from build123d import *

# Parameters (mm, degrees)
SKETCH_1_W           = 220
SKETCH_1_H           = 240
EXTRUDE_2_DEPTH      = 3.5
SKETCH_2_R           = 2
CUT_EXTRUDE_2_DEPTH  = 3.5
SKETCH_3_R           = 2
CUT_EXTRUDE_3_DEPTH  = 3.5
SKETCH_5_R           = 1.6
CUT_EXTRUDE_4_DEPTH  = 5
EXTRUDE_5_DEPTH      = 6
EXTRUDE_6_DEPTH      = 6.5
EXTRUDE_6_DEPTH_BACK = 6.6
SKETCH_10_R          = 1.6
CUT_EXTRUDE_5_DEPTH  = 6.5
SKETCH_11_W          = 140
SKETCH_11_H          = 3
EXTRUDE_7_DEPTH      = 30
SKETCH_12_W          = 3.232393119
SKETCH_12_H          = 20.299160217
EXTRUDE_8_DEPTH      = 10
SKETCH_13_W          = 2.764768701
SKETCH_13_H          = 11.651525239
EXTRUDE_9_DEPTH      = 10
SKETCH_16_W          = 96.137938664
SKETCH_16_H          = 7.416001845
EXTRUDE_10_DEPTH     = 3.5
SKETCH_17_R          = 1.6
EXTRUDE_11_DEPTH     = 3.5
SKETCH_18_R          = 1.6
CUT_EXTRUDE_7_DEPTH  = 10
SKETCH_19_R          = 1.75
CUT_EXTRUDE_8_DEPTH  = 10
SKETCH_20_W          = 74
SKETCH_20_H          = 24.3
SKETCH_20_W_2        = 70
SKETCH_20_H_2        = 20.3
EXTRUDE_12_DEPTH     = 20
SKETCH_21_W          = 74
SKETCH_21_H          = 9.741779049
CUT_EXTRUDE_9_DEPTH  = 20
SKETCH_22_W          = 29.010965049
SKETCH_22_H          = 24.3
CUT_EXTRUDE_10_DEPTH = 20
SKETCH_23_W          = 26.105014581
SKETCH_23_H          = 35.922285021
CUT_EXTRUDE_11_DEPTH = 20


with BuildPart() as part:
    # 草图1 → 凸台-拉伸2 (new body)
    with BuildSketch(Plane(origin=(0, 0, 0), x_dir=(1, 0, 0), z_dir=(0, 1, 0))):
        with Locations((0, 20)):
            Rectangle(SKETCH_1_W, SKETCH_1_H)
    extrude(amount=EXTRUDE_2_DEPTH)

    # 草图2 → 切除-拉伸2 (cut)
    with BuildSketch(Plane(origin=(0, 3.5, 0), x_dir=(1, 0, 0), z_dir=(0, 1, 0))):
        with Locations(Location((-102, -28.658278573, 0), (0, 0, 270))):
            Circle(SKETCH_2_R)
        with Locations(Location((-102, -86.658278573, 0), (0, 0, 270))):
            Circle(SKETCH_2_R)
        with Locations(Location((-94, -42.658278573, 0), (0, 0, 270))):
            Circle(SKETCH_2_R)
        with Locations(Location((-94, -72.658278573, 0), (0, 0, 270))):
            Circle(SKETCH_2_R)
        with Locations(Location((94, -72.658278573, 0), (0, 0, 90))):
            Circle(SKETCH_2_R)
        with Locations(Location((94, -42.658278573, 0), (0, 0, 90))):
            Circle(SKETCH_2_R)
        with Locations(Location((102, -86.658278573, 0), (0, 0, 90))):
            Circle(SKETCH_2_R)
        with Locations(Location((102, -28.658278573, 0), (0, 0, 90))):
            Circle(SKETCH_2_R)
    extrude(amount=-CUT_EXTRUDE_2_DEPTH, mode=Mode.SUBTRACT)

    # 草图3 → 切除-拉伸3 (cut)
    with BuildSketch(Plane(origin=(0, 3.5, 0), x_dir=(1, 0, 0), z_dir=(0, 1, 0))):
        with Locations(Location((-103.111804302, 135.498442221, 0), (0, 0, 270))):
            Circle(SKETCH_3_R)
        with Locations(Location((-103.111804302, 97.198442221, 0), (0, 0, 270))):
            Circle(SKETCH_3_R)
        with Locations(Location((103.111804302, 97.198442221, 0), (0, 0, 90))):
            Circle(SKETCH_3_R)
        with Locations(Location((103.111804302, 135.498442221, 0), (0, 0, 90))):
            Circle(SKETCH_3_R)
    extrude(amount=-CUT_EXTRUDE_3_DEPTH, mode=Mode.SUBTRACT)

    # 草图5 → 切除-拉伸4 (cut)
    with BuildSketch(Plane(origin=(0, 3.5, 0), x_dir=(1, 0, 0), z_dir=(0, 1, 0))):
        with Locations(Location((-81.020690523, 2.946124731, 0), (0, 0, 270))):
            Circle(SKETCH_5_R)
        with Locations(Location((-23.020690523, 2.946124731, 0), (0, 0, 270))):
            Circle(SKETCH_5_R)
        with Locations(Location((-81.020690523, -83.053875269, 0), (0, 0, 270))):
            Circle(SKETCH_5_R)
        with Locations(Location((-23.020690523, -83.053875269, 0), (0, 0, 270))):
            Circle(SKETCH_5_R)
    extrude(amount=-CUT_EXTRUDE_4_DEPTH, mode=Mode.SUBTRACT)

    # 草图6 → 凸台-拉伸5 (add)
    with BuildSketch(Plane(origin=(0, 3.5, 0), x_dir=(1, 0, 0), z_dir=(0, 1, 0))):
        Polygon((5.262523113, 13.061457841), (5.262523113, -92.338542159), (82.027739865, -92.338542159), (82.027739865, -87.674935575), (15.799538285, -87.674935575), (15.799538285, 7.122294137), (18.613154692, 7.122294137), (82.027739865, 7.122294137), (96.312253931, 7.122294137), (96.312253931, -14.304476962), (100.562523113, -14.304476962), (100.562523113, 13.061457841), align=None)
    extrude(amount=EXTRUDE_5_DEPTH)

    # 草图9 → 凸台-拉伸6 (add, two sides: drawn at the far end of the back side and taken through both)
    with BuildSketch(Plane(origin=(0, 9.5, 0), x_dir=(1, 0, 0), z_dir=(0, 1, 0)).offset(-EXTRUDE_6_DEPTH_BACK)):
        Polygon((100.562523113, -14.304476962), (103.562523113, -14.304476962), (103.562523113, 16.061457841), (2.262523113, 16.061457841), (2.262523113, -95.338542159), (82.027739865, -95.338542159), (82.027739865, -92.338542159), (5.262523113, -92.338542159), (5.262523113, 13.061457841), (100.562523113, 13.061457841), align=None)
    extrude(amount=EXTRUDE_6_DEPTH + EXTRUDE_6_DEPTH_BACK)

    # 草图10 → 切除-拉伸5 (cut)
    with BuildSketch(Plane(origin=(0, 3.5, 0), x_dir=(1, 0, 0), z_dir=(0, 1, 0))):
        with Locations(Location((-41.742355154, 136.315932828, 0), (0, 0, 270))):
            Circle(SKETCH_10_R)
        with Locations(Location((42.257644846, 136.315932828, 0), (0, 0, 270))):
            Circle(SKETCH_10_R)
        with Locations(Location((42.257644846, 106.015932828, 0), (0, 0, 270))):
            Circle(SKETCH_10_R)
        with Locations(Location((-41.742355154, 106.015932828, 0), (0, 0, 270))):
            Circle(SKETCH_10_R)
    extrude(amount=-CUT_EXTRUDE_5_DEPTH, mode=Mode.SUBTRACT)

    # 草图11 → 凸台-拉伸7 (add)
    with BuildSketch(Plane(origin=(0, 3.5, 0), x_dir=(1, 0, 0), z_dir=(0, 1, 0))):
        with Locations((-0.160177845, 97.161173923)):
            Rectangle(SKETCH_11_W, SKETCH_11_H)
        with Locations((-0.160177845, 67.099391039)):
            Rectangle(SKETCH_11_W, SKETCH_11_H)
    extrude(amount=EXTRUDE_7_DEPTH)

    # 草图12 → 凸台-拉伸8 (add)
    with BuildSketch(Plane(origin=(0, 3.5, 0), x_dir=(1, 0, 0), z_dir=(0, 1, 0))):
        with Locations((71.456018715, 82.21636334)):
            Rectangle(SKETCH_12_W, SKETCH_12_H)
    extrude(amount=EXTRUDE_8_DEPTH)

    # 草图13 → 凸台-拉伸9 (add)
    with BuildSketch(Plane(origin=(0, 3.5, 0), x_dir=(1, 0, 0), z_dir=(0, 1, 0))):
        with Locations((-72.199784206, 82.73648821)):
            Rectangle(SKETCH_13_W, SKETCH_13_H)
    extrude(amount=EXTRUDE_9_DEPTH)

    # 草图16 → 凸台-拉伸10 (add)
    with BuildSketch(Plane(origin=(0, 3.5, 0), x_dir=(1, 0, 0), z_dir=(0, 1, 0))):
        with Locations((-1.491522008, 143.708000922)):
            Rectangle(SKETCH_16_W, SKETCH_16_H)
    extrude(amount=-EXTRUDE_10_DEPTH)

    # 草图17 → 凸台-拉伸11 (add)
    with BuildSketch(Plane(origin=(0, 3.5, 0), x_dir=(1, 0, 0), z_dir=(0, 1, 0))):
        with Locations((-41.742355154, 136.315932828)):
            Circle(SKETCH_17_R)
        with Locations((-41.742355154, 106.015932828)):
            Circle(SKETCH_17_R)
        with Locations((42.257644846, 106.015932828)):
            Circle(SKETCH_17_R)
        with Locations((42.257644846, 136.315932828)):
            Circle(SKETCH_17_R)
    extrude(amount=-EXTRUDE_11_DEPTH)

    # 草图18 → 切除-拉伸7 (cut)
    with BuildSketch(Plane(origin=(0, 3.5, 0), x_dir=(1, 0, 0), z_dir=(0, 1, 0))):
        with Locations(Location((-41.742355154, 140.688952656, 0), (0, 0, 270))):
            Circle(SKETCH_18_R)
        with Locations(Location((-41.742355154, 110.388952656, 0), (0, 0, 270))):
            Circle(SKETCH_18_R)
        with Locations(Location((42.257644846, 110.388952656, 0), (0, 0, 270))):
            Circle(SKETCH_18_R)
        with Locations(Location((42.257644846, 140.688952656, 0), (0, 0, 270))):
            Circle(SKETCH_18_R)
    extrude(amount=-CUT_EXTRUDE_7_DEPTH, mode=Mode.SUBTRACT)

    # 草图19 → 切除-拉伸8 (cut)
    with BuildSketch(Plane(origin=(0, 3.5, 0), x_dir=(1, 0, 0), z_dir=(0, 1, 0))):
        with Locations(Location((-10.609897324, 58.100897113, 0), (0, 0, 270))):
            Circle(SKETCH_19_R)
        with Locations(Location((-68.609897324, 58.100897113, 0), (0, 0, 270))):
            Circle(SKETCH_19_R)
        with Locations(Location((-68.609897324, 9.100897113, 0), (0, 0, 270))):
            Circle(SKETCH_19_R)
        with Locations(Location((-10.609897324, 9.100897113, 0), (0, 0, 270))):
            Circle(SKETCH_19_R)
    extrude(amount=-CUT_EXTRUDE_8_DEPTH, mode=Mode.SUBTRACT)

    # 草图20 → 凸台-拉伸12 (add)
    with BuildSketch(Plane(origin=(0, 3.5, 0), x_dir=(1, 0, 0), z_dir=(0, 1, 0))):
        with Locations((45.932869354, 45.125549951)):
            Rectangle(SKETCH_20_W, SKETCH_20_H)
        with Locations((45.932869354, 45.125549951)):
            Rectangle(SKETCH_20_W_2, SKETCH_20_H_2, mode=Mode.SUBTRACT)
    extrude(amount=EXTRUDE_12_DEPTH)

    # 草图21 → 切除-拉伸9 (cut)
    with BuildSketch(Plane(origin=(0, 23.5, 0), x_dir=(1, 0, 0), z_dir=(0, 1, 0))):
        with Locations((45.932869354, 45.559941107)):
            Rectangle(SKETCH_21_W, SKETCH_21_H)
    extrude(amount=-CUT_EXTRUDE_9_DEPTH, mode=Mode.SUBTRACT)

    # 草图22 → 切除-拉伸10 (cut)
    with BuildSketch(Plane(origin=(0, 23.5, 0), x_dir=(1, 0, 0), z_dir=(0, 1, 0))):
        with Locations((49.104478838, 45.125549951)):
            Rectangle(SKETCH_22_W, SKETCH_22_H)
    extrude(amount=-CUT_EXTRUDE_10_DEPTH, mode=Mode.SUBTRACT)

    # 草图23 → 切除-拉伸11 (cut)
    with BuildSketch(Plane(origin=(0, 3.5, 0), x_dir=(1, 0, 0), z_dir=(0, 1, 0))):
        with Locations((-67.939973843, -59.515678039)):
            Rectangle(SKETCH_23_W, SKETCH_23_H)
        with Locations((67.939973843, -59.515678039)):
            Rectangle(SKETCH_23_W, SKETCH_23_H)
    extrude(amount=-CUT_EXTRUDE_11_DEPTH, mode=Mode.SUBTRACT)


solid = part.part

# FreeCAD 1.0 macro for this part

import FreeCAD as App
import Part
import Sketcher
from FreeCAD import Vector
Q = App.Units.Quantity

doc = App.newDocument("Part")
body = doc.addObject("PartDesign::Body", "Body")

sketch1 = doc.addObject("Sketcher::SketchObject", "Sketch")
body.addObject(sketch1)
sketch1.AttachmentSupport = (doc.XZ_Plane, [""])
sketch1.MapMode = "FlatFace"
sketch1.addGeometry([
    Part.LineSegment(Vector(-110, -140, 0), Vector(-110, 100, 0)),
    Part.LineSegment(Vector(-110, 100, 0), Vector(110, 100, 0)),
    Part.LineSegment(Vector(110, 100, 0), Vector(110, -140, 0)),
    Part.LineSegment(Vector(110, -140, 0), Vector(-110, -140, 0)),
], False)
sketch1.addConstraint([
    Sketcher.Constraint("Coincident", 0, 2, 1, 1),
    Sketcher.Constraint("Coincident", 1, 2, 2, 1),
    Sketcher.Constraint("Coincident", 2, 2, 3, 1),
    Sketcher.Constraint("Coincident", 3, 2, 0, 1),
    Sketcher.Constraint("Vertical", 0),
    Sketcher.Constraint("Horizontal", 1),
    Sketcher.Constraint("Vertical", 2),
    Sketcher.Constraint("Horizontal", 3),
    Sketcher.Constraint("DistanceX", 1, 1, 1, 2, Q("220 mm")),
    Sketcher.Constraint("DistanceY", 0, 1, 0, 2, Q("240 mm")),
    Sketcher.Constraint("DistanceX", 0, 2, -1, 1, Q("110 mm")),
    Sketcher.Constraint("DistanceY", -1, 1, 0, 2, Q("100 mm")),
])
pad1 = doc.addObject("PartDesign::Pad", "Pad")
body.addObject(pad1)
pad1.Profile = sketch1
pad1.Length = 3.5
pad1.Reversed = True

sketch2 = doc.addObject("Sketcher::SketchObject", "Sketch001")
body.addObject(sketch2)
sketch2.AttachmentSupport = (doc.XZ_Plane, [""])
sketch2.MapMode = "FlatFace"
sketch2.AttachmentOffset = App.Placement(Vector(0, 0, -3.5), App.Rotation())
sketch2.addGeometry([
    Part.Circle(Vector(-102, 28.7, 0), Vector(0, 0, 1), 2),
    Part.Circle(Vector(-102, 86.7, 0), Vector(0, 0, 1), 2),
    Part.Circle(Vector(-94, 42.7, 0), Vector(0, 0, 1), 2),
    Part.Circle(Vector(-94, 72.7, 0), Vector(0, 0, 1), 2),
    Part.Circle(Vector(94, 72.7, 0), Vector(0, 0, 1), 2),
    Part.Circle(Vector(94, 42.7, 0), Vector(0, 0, 1), 2),
    Part.Circle(Vector(102, 86.7, 0), Vector(0, 0, 1), 2),
    Part.Circle(Vector(102, 28.7, 0), Vector(0, 0, 1), 2),
], False)
sketch2.addConstraint([
    Sketcher.Constraint("Equal", 0, 1),
    Sketcher.Constraint("Equal", 1, 2),
    Sketcher.Constraint("Equal", 2, 3),
    Sketcher.Constraint("Equal", 3, 4),
    Sketcher.Constraint("Equal", 4, 5),
    Sketcher.Constraint("Equal", 5, 6),
    Sketcher.Constraint("Equal", 6, 7),
    Sketcher.Constraint("Symmetric", 3, 3, 4, 3, -2),
    Sketcher.Constraint("Symmetric", 2, 3, 5, 3, -2),
    Sketcher.Constraint("Symmetric", 1, 3, 6, 3, -2),
    Sketcher.Constraint("Symmetric", 0, 3, 7, 3, -2),
    Sketcher.Constraint("Vertical", 0, 3, 1, 3),
    Sketcher.Constraint("Vertical", 2, 3, 3, 3),
    Sketcher.Constraint("Diameter", 0, Q("4 mm")),
    Sketcher.Constraint("DistanceX", 0, 3, -1, 1, Q("102 mm")),
    Sketcher.Constraint("DistanceX", 2, 3, -1, 1, Q("94 mm")),
    Sketcher.Constraint("DistanceY", 0, 3, 1, 3, Q("58 mm")),
    Sketcher.Constraint("DistanceY", 0, 3, 2, 3, Q("14 mm")),
    Sketcher.Constraint("DistanceY", 3, 3, 1, 3, Q("14 mm")),
    Sketcher.Constraint("DistanceY", -1, 1, 0, 3, Q("28.658279 mm")),
])
pocket1 = doc.addObject("PartDesign::Pocket", "Pocket")
body.addObject(pocket1)
pocket1.Profile = sketch2
pocket1.Length = 3.5
pocket1.Reversed = True

sketch3 = doc.addObject("Sketcher::SketchObject", "Sketch002")
body.addObject(sketch3)
sketch3.AttachmentSupport = (doc.XZ_Plane, [""])
sketch3.MapMode = "FlatFace"
sketch3.AttachmentOffset = App.Placement(Vector(0, 0, -3.5), App.Rotation())
sketch3.addGeometry([
    Part.Circle(Vector(-103.1, -135.5, 0), Vector(0, 0, 1), 2),
    Part.Circle(Vector(-103.1, -97.2, 0), Vector(0, 0, 1), 2),
    Part.Circle(Vector(103.1, -97.2, 0), Vector(0, 0, 1), 2),
    Part.Circle(Vector(103.1, -135.5, 0), Vector(0, 0, 1), 2),
], False)
sketch3.addConstraint([
    Sketcher.Constraint("Equal", 0, 1),
    Sketcher.Constraint("Equal", 1, 2),
    Sketcher.Constraint("Equal", 2, 3),
    Sketcher.Constraint("Symmetric", 1, 3, 2, 3, -2),
    Sketcher.Constraint("Symmetric", 0, 3, 3, 3, -2),
    Sketcher.Constraint("Vertical", 0, 3, 1, 3),
    Sketcher.Constraint("Diameter", 0, Q("4 mm")),
    Sketcher.Constraint("DistanceY", 0, 3, 1, 3, Q("38.3 mm")),
    Sketcher.Constraint("DistanceX", 1, 3, 2, 3, Q("206.223609 mm")),
    Sketcher.Constraint("DistanceY", 0, 3, -1, 1, Q("135.498442 mm")),
])
pocket2 = doc.addObject("PartDesign::Pocket", "Pocket001")
body.addObject(pocket2)
pocket2.Profile = sketch3
pocket2.Length = 3.5
pocket2.Reversed = True

sketch4 = doc.addObject("Sketcher::SketchObject", "Sketch003")
body.addObject(sketch4)
sketch4.AttachmentSupport = (doc.XZ_Plane, [""])
sketch4.MapMode = "FlatFace"
sketch4.AttachmentOffset = App.Placement(Vector(0, 0, -3.5), App.Rotation())
sketch4.addGeometry([
    Part.Circle(Vector(-81, -2.9, 0), Vector(0, 0, 1), 1.6),
    Part.Circle(Vector(-23, -2.9, 0), Vector(0, 0, 1), 1.6),
    Part.Circle(Vector(-81, 83.1, 0), Vector(0, 0, 1), 1.6),
    Part.Circle(Vector(-23, 83.1, 0), Vector(0, 0, 1), 1.6),
], False)
sketch4.addConstraint([
    Sketcher.Constraint("Equal", 0, 1),
    Sketcher.Constraint("Equal", 1, 2),
    Sketcher.Constraint("Equal", 2, 3),
    Sketcher.Constraint("Horizontal", 0, 3, 1, 3),
    Sketcher.Constraint("Horizontal", 2, 3, 3, 3),
    Sketcher.Constraint("Vertical", 0, 3, 2, 3),
    Sketcher.Constraint("Vertical", 1, 3, 3, 3),
    Sketcher.Constraint("Diameter", 0, Q("3.2 mm")),
    Sketcher.Constraint("DistanceX", 0, 3, 1, 3, Q("58 mm")),
    Sketcher.Constraint("DistanceY", 0, 3, 2, 3, Q("86 mm")),
    Sketcher.Constraint("DistanceX", 0, 3, -1, 1, Q("81.020691 mm")),
    Sketcher.Constraint("DistanceY", 0, 3, -1, 1, Q("2.946125 mm")),
])
pocket3 = doc.addObject("PartDesign::Pocket", "Pocket002")
body.addObject(pocket3)
pocket3.Profile = sketch4
pocket3.Length = 5
pocket3.Reversed = True

sketch5 = doc.addObject("Sketcher::SketchObject", "Sketch004")
body.addObject(sketch5)
sketch5.AttachmentSupport = (doc.XZ_Plane, [""])
sketch5.MapMode = "FlatFace"
sketch5.AttachmentOffset = App.Placement(Vector(0, 0, -3.5), App.Rotation())
sketch5.addGeometry([
    Part.LineSegment(Vector(5.3, -13.1, 0), Vector(5.3, 92.3, 0)),
    Part.LineSegment(Vector(5.3, 92.3, 0), Vector(82, 92.3, 0)),
    Part.LineSegment(Vector(82, 92.3, 0), Vector(82, 87.7, 0)),
    Part.LineSegment(Vector(82, 87.7, 0), Vector(15.8, 87.7, 0)),
    Part.LineSegment(Vector(15.8, 87.7, 0), Vector(15.8, -7.1, 0)),
    Part.LineSegment(Vector(15.8, -7.1, 0), Vector(96.3, -7.1, 0)),
    Part.LineSegment(Vector(96.3, -7.1, 0), Vector(96.3, 14.3, 0)),
    Part.LineSegment(Vector(96.3, 14.3, 0), Vector(100.6, 14.3, 0)),
    Part.LineSegment(Vector(100.6, 14.3, 0), Vector(100.6, -13.1, 0)),
    Part.LineSegment(Vector(100.6, -13.1, 0), Vector(5.3, -13.1, 0)),
], False)
sketch5.addConstraint([
    Sketcher.Constraint("Coincident", 0, 2, 1, 1),
    Sketcher.Constraint("Coincident", 1, 2, 2, 1),
    Sketcher.Constraint("Coincident", 2, 2, 3, 1),
    Sketcher.Constraint("Coincident", 3, 2, 4, 1),
    Sketcher.Constraint("Coincident", 4, 2, 5, 1),
    Sketcher.Constraint("Coincident", 5, 2, 6, 1),
    Sketcher.Constraint("Coincident", 6, 2, 7, 1),
    Sketcher.Constraint("Coincident", 7, 2, 8, 1),
    Sketcher.Constraint("Coincident", 8, 2, 9, 1),
    Sketcher.Constraint("Coincident", 9, 2, 0, 1),
    Sketcher.Constraint("Vertical", 0),
    Sketcher.Constraint("Horizontal", 1),
    Sketcher.Constraint("Vertical", 2),
    Sketcher.Constraint("Horizontal", 3),
    Sketcher.Constraint("Vertical", 4),
    Sketcher.Constraint("Horizontal", 5),
    Sketcher.Constraint("Vertical", 6),
    Sketcher.Constraint("Horizontal", 7),
    Sketcher.Constraint("Vertical", 8),
    Sketcher.Constraint("Horizontal", 9),
    Sketcher.Constraint("DistanceX", 9, 2, 9, 1, Q("95.3 mm")),
    Sketcher.Constraint("DistanceY", 0, 1, 0, 2, Q("105.4 mm")),
    Sketcher.Constraint("DistanceX", 3, 2, 3, 1, Q("66.228202 mm")),
    Sketcher.Constraint("DistanceX", 7, 1, 7, 2, Q("4.250269 mm")),
    Sketcher.Constraint("DistanceY", 4, 2, 4, 1, Q("94.79723 mm")),
    Sketcher.Constraint("DistanceY", 6, 1, 6, 2, Q("21.426771 mm")),
    Sketcher.Constraint("DistanceX", 1, 1, 1, 2, Q("76.765217 mm")),
    Sketcher.Constraint("DistanceY", 2, 2, 2, 1, Q("4.663607 mm")),
    Sketcher.Constraint("DistanceX", -1, 1, 1, 2, Q("82.02774 mm")),
    Sketcher.Constraint("DistanceY", -1, 1, 0, 2, Q("92.338542 mm")),
])
pad2 = doc.addObject("PartDesign::Pad", "Pad001")
body.addObject(pad2)
pad2.Profile = sketch5
pad2.Length = 6
pad2.Reversed = True

sketch6 = doc.addObject("Sketcher::SketchObject", "Sketch005")
body.addObject(sketch6)
sketch6.AttachmentSupport = (doc.XZ_Plane, [""])
sketch6.MapMode = "FlatFace"
sketch6.AttachmentOffset = App.Placement(Vector(0, 0, -9.5), App.Rotation())
sketch6.addGeometry([
    Part.LineSegment(Vector(100.6, 14.3, 0), Vector(103.6, 14.3, 0)),
    Part.LineSegment(Vector(103.6, 14.3, 0), Vector(103.6, -16.1, 0)),
    Part.LineSegment(Vector(103.6, -16.1, 0), Vector(2.3, -16.1, 0)),
    Part.LineSegment(Vector(2.3, -16.1, 0), Vector(2.3, 95.3, 0)),
    Part.LineSegment(Vector(2.3, 95.3, 0), Vector(82, 95.3, 0)),
    Part.LineSegment(Vector(82, 95.3, 0), Vector(82, 92.3, 0)),
    Part.LineSegment(Vector(82, 92.3, 0), Vector(5.3, 92.3, 0)),
    Part.LineSegment(Vector(5.3, 92.3, 0), Vector(5.3, -13.1, 0)),
    Part.LineSegment(Vector(5.3, -13.1, 0), Vector(100.6, -13.1, 0)),
    Part.LineSegment(Vector(100.6, -13.1, 0), Vector(100.6, 14.3, 0)),
], False)
sketch6.addConstraint([
    Sketcher.Constraint("Coincident", 0, 2, 1, 1),
    Sketcher.Constraint("Coincident", 1, 2, 2, 1),
    Sketcher.Constraint("Coincident", 2, 2, 3, 1),
    Sketcher.Constraint("Coincident", 3, 2, 4, 1),
    Sketcher.Constraint("Coincident", 4, 2, 5, 1),
    Sketcher.Constraint("Coincident", 5, 2, 6, 1),
    Sketcher.Constraint("Coincident", 6, 2, 7, 1),
    Sketcher.Constraint("Coincident", 7, 2, 8, 1),
    Sketcher.Constraint("Coincident", 8, 2, 9, 1),
    Sketcher.Constraint("Coincident", 9, 2, 0, 1),
    Sketcher.Constraint("Horizontal", 0),
    Sketcher.Constraint("Vertical", 1),
    Sketcher.Constraint("Horizontal", 2),
    Sketcher.Constraint("Vertical", 3),
    Sketcher.Constraint("Horizontal", 4),
    Sketcher.Constraint("Vertical", 5),
    Sketcher.Constraint("Horizontal", 6),
    Sketcher.Constraint("Vertical", 7),
    Sketcher.Constraint("Horizontal", 8),
    Sketcher.Constraint("Vertical", 9),
    Sketcher.Constraint("Equal", 0, 5),
    Sketcher.Constraint("DistanceX", 0, 1, 0, 2, Q("3 mm")),
    Sketcher.Constraint("DistanceX", 2, 2, 2, 1, Q("101.3 mm")),
    Sketcher.Constraint("DistanceX", 8, 1, 8, 2, Q("95.3 mm")),
    Sketcher.Constraint("DistanceY", 3, 1, 3, 2, Q("111.4 mm")),
    Sketcher.Constraint("DistanceY", 7, 2, 7, 1, Q("105.4 mm")),
    Sketcher.Constraint("DistanceX", 4, 1, 4, 2, Q("79.765217 mm")),
    Sketcher.Constraint("DistanceY", 1, 2, 1, 1, Q("30.365935 mm")),
    Sketcher.Constraint("DistanceX", -1, 1, 4, 2, Q("82.02774 mm")),
    Sketcher.Constraint("DistanceY", -1, 1, 0, 2, Q("14.304477 mm")),
])
pad3 = doc.addObject("PartDesign::Pad", "Pad002")
body.addObject(pad3)
pad3.Profile = sketch6
pad3.Type = "TwoLengths"
pad3.Length = 6.5
pad3.Length2 = 6.6
pad3.Reversed = True

sketch7 = doc.addObject("Sketcher::SketchObject", "Sketch006")
body.addObject(sketch7)
sketch7.AttachmentSupport = (doc.XZ_Plane, [""])
sketch7.MapMode = "FlatFace"
sketch7.AttachmentOffset = App.Placement(Vector(0, 0, -3.5), App.Rotation())
sketch7.addGeometry([
    Part.Circle(Vector(-41.7, -136.3, 0), Vector(0, 0, 1), 1.6),
    Part.Circle(Vector(42.3, -136.3, 0), Vector(0, 0, 1), 1.6),
    Part.Circle(Vector(42.3, -106, 0), Vector(0, 0, 1), 1.6),
    Part.Circle(Vector(-41.7, -106, 0), Vector(0, 0, 1), 1.6),
], False)
sketch7.addConstraint([
    Sketcher.Constraint("Equal", 0, 1),
    Sketcher.Constraint("Equal", 1, 2),
    Sketcher.Constraint("Equal", 2, 3),
    Sketcher.Constraint("Horizontal", 0, 3, 1, 3),
    Sketcher.Constraint("Horizontal", 2, 3, 3, 3),
    Sketcher.Constraint("Vertical", 1, 3, 2, 3),
    Sketcher.Constraint("Vertical", 0, 3, 3, 3),
    Sketcher.Constraint("Diameter", 0, Q("3.2 mm")),
    Sketcher.Constraint("DistanceX", 0, 3, 1, 3, Q("84 mm")),
    Sketcher.Constraint("DistanceY", 1, 3, 2, 3, Q("30.3 mm")),
    Sketcher.Constraint("DistanceX", 0, 3, -1, 1, Q("41.742355 mm")),
    Sketcher.Constraint("DistanceY", 0, 3, -1, 1, Q("136.315933 mm")),
])
pocket4 = doc.addObject("PartDesign::Pocket", "Pocket003")
body.addObject(pocket4)
pocket4.Profile = sketch7
pocket4.Length = 6.5
pocket4.Reversed = True

sketch8 = doc.addObject("Sketcher::SketchObject", "Sketch007")
body.addObject(sketch8)
sketch8.AttachmentSupport = (doc.XZ_Plane, [""])
sketch8.MapMode = "FlatFace"
sketch8.AttachmentOffset = App.Placement(Vector(0, 0, -3.5), App.Rotation())
sketch8.addGeometry([
    Part.LineSegment(Vector(-70.2, -98.7, 0), Vector(-70.2, -95.7, 0)),
    Part.LineSegment(Vector(-70.2, -95.7, 0), Vector(69.8, -95.7, 0)),
    Part.LineSegment(Vector(69.8, -95.7, 0), Vector(69.8, -98.7, 0)),
    Part.LineSegment(Vector(69.8, -98.7, 0), Vector(-70.2, -98.7, 0)),
    Part.LineSegment(Vector(-70.2, -68.6, 0), Vector(-70.2, -65.6, 0)),
    Part.LineSegment(Vector(-70.2, -65.6, 0), Vector(69.8, -65.6, 0)),
    Part.LineSegment(Vector(69.8, -65.6, 0), Vector(69.8, -68.6, 0)),
    Part.LineSegment(Vector(69.8, -68.6, 0), Vector(-70.2, -68.6, 0)),
], False)
sketch8.addConstraint([
    Sketcher.Constraint("Coincident", 0, 2, 1, 1),
    Sketcher.Constraint("Coincident", 1, 2, 2, 1),
    Sketcher.Constraint("Coincident", 2, 2, 3, 1),
    Sketcher.Constraint("Coincident", 3, 2, 0, 1),
    Sketcher.Constraint("Coincident", 4, 2, 5, 1),
    Sketcher.Constraint("Coincident", 5, 2, 6, 1),
    Sketcher.Constraint("Coincident", 6, 2, 7, 1),
    Sketcher.Constraint("Coincident", 7, 2, 4, 1),
    Sketcher.Constraint("Vertical", 0),
    Sketcher.Constraint("Horizontal", 1),
    Sketcher.Constraint("Vertical", 2),
    Sketcher.Constraint("Horizontal", 3),
    Sketcher.Constraint("Vertical", 4),
    Sketcher.Constraint("Horizontal", 5),
    Sketcher.Constraint("Vertical", 6),
    Sketcher.Constraint("Horizontal", 7),
    Sketcher.Constraint("Vertical", 3, 2, 4, 2),
    Sketcher.Constraint("Vertical", 2, 2, 5, 2),
    Sketcher.Constraint("Equal", 2, 4),
    Sketcher.Constraint("DistanceX", 1, 1, 1, 2, Q("140 mm")),
    Sketcher.Constraint("DistanceY", 0, 1, 0, 2, Q("3 mm")),
    Sketcher.Constraint("DistanceY", 4, 2, -1, 1, Q("65.599391 mm")),
    Sketcher.Constraint("DistanceX", 0, 2, -1, 1, Q("70.160178 mm")),
    Sketcher.Constraint("DistanceY", 0, 2, -1, 1, Q("95.661174 mm")),
])
pad4 = doc.addObject("PartDesign::Pad", "Pad003")
body.addObject(pad4)
pad4.Profile = sketch8
pad4.Length = 30
pad4.Reversed = True

sketch9 = doc.addObject("Sketcher::SketchObject", "Sketch008")
body.addObject(sketch9)
sketch9.AttachmentSupport = (doc.XZ_Plane, [""])
sketch9.MapMode = "FlatFace"
sketch9.AttachmentOffset = App.Placement(Vector(0, 0, -3.5), App.Rotation())
sketch9.addGeometry([
    Part.LineSegment(Vector(69.8, -92.4, 0), Vector(69.8, -72.1, 0)),
    Part.LineSegment(Vector(69.8, -72.1, 0), Vector(73.1, -72.1, 0)),
    Part.LineSegment(Vector(73.1, -72.1, 0), Vector(73.1, -92.4, 0)),
    Part.LineSegment(Vector(73.1, -92.4, 0), Vector(69.8, -92.4, 0)),
], False)
sketch9.addConstraint([
    Sketcher.Constraint("Coincident", 0, 2, 1, 1),
    Sketcher.Constraint("Coincident", 1, 2, 2, 1),
    Sketcher.Constraint("Coincident", 2, 2, 3, 1),
    Sketcher.Constraint("Coincident", 3, 2, 0, 1),
    Sketcher.Constraint("Vertical", 0),
    Sketcher.Constraint("Horizontal", 1),
    Sketcher.Constraint("Vertical", 2),
    Sketcher.Constraint("Horizontal", 3),
    Sketcher.Constraint("DistanceY", 0, 1, 0, 2, Q("20.29916 mm")),
    Sketcher.Constraint("DistanceX", 1, 1, 1, 2, Q("3.232393 mm")),
    Sketcher.Constraint("DistanceX", -1, 1, 0, 2, Q("69.839822 mm")),
    Sketcher.Constraint("DistanceY", 0, 2, -1, 1, Q("72.066783 mm")),
])
pad5 = doc.addObject("PartDesign::Pad", "Pad004")
body.addObject(pad5)
pad5.Profile = sketch9
pad5.Length = 10
pad5.Reversed = True

sketch10 = doc.addObject("Sketcher::SketchObject", "Sketch009")
body.addObject(sketch10)
sketch10.AttachmentSupport = (doc.XZ_Plane, [""])
sketch10.MapMode = "FlatFace"
sketch10.AttachmentOffset = App.Placement(Vector(0, 0, -3.5), App.Rotation())
sketch10.addGeometry([
    Part.LineSegment(Vector(-73.6, -88.6, 0), Vector(-73.6, -76.9, 0)),
    Part.LineSegment(Vector(-73.6, -76.9, 0), Vector(-70.8, -76.9, 0)),
    Part.LineSegment(Vector(-70.8, -76.9, 0), Vector(-70.8, -88.6, 0)),
    Part.LineSegment(Vector(-70.8, -88.6, 0), Vector(-73.6, -88.6, 0)),
], False)
sketch10.addConstraint([
    Sketcher.Constraint("Coincident", 0, 2, 1, 1),
    Sketcher.Constraint("Coincident", 1, 2, 2, 1),
    Sketcher.Constraint("Coincident", 2, 2, 3, 1),
    Sketcher.Constraint("Coincident", 3, 2, 0, 1),
    Sketcher.Constraint("Vertical", 0),
    Sketcher.Constraint("Horizontal", 1),
    Sketcher.Constraint("Vertical", 2),
    Sketcher.Constraint("Horizontal", 3),
    Sketcher.Constraint("DistanceX", 1, 1, 1, 2, Q("2.764769 mm")),
    Sketcher.Constraint("DistanceX", 1, 2, -1, 1, Q("70.8174 mm")),
    Sketcher.Constraint("DistanceY", 0, 1, 0, 2, Q("11.651525 mm")),
    Sketcher.Constraint("DistanceY", 2, 2, -1, 1, Q("88.562251 mm")),
])
pad6 = doc.addObject("PartDesign::Pad", "Pad005")
body.addObject(pad6)
pad6.Profile = sketch10
pad6.Length = 10
pad6.Reversed = True

sketch11 = doc.addObject("Sketcher::SketchObject", "Sketch010")
body.addObject(sketch11)
sketch11.AttachmentSupport = (doc.XZ_Plane, [""])
sketch11.MapMode = "FlatFace"
sketch11.AttachmentOffset = App.Placement(Vector(0, 0, -3.5), App.Rotation())
sketch11.addGeometry([
    Part.LineSegment(Vector(-50, -147, 0), Vector(-50, -140, 0)),
    Part.LineSegment(Vector(-50, -140, 0), Vector(47, -140, 0)),
    Part.LineSegment(Vector(47, -140, 0), Vector(47, -147, 0)),
    Part.LineSegment(Vector(47, -147, 0), Vector(-50, -147, 0)),
], False)
sketch11.addConstraint([
    Sketcher.Constraint("Coincident", 0, 2, 1, 1),
    Sketcher.Constraint("Coincident", 1, 2, 2, 1),
    Sketcher.Constraint("Coincident", 2, 2, 3, 1),
    Sketcher.Constraint("Coincident", 3, 2, 0, 1),
    Sketcher.Constraint("Vertical", 0),
    Sketcher.Constraint("Horizontal", 1),
    Sketcher.Constraint("Vertical", 2),
    Sketcher.Constraint("Horizontal", 3),
    Sketcher.Constraint("DistanceY", 0, 2, -1, 1, Q("140 mm")),
    Sketcher.Constraint("DistanceY", 0, 1, 0, 2, Q("7.416002 mm")),
    Sketcher.Constraint("DistanceX", 1, 1, 1, 2, Q("96.137939 mm")),
    Sketcher.Constraint("DistanceX", 0, 2, -1, 1, Q("49.560491 mm")),
])
pad7 = doc.addObject("PartDesign::Pad", "Pad006")
body.addObject(pad7)
pad7.Profile = sketch11
pad7.Length = 3.5

sketch12 = doc.addObject("Sketcher::SketchObject", "Sketch011")
body.addObject(sketch12)
sketch12.AttachmentSupport = (doc.XZ_Plane, [""])
sketch12.MapMode = "FlatFace"
sketch12.AttachmentOffset = App.Placement(Vector(0, 0, -3.5), App.Rotation())
sketch12.addGeometry([
    Part.Circle(Vector(-41.7, -136.3, 0), Vector(0, 0, 1), 1.6),
    Part.Circle(Vector(-41.7, -106, 0), Vector(0, 0, 1), 1.6),
    Part.Circle(Vector(42.3, -106, 0), Vector(0, 0, 1), 1.6),
    Part.Circle(Vector(42.3, -136.3, 0), Vector(0, 0, 1), 1.6),
], False)
sketch12.addConstraint([
    Sketcher.Constraint("Equal", 0, 1),
    Sketcher.Constraint("Equal", 1, 2),
    Sketcher.Constraint("Equal", 2, 3),
    Sketcher.Constraint("Horizontal", 1, 3, 2, 3),
    Sketcher.Constraint("Horizontal", 0, 3, 3, 3),
    Sketcher.Constraint("Vertical", 0, 3, 1, 3),
    Sketcher.Constraint("Vertical", 2, 3, 3, 3),
    Sketcher.Constraint("Diameter", 0, Q("3.2 mm")),
    Sketcher.Constraint("DistanceX", 1, 3, 2, 3, Q("84 mm")),
    Sketcher.Constraint("DistanceY", 0, 3, 1, 3, Q("30.3 mm")),
    Sketcher.Constraint("DistanceX", 0, 3, -1, 1, Q("41.742355 mm")),
    Sketcher.Constraint("DistanceY", 0, 3, -1, 1, Q("136.315933 mm")),
])
pad8 = doc.addObject("PartDesign::Pad", "Pad007")
body.addObject(pad8)
pad8.Profile = sketch12
pad8.Length = 3.5

sketch13 = doc.addObject("Sketcher::SketchObject", "Sketch012")
body.addObject(sketch13)
sketch13.AttachmentSupport = (doc.XZ_Plane, [""])
sketch13.MapMode = "FlatFace"
sketch13.AttachmentOffset = App.Placement(Vector(0, 0, -3.5), App.Rotation())
sketch13.addGeometry([
    Part.Circle(Vector(-41.7, -140.7, 0), Vector(0, 0, 1), 1.6),
    Part.Circle(Vector(-41.7, -110.4, 0), Vector(0, 0, 1), 1.6),
    Part.Circle(Vector(42.3, -110.4, 0), Vector(0, 0, 1), 1.6),
    Part.Circle(Vector(42.3, -140.7, 0), Vector(0, 0, 1), 1.6),
], False)
sketch13.addConstraint([
    Sketcher.Constraint("Equal", 0, 1),
    Sketcher.Constraint("Equal", 1, 2),
    Sketcher.Constraint("Equal", 2, 3),
    Sketcher.Constraint("Horizontal", 1, 3, 2, 3),
    Sketcher.Constraint("Horizontal", 0, 3, 3, 3),
    Sketcher.Constraint("Vertical", 0, 3, 1, 3),
    Sketcher.Constraint("Vertical", 2, 3, 3, 3),
    Sketcher.Constraint("Diameter", 0, Q("3.2 mm")),
    Sketcher.Constraint("DistanceX", 1, 3, 2, 3, Q("84 mm")),
    Sketcher.Constraint("DistanceY", 0, 3, 1, 3, Q("30.3 mm")),
    Sketcher.Constraint("DistanceX", 0, 3, -1, 1, Q("41.742355 mm")),
    Sketcher.Constraint("DistanceY", 0, 3, -1, 1, Q("140.688953 mm")),
])
pocket5 = doc.addObject("PartDesign::Pocket", "Pocket004")
body.addObject(pocket5)
pocket5.Profile = sketch13
pocket5.Length = 10
pocket5.Reversed = True

sketch14 = doc.addObject("Sketcher::SketchObject", "Sketch013")
body.addObject(sketch14)
sketch14.AttachmentSupport = (doc.XZ_Plane, [""])
sketch14.MapMode = "FlatFace"
sketch14.AttachmentOffset = App.Placement(Vector(0, 0, -3.5), App.Rotation())
sketch14.addGeometry([
    Part.Circle(Vector(-10.6, -58.1, 0), Vector(0, 0, 1), 1.8),
    Part.Circle(Vector(-68.6, -58.1, 0), Vector(0, 0, 1), 1.8),
    Part.Circle(Vector(-68.6, -9.1, 0), Vector(0, 0, 1), 1.8),
    Part.Circle(Vector(-10.6, -9.1, 0), Vector(0, 0, 1), 1.8),
], False)
sketch14.addConstraint([
    Sketcher.Constraint("Equal", 0, 1),
    Sketcher.Constraint("Equal", 1, 2),
    Sketcher.Constraint("Equal", 2, 3),
    Sketcher.Constraint("Horizontal", 0, 3, 1, 3),
    Sketcher.Constraint("Horizontal", 2, 3, 3, 3),
    Sketcher.Constraint("Vertical", 1, 3, 2, 3),
    Sketcher.Constraint("Vertical", 0, 3, 3, 3),
    Sketcher.Constraint("Diameter", 0, Q("3.5 mm")),
    Sketcher.Constraint("DistanceX", 1, 3, 0, 3, Q("58 mm")),
    Sketcher.Constraint("DistanceY", 1, 3, 2, 3, Q("49 mm")),
    Sketcher.Constraint("DistanceX", 0, 3, -1, 1, Q("10.609897 mm")),
    Sketcher.Constraint("DistanceY", 0, 3, -1, 1, Q("58.100897 mm")),
])
pocket6 = doc.addObject("PartDesign::Pocket", "Pocket005")
body.addObject(pocket6)
pocket6.Profile = sketch14
pocket6.Length = 10
pocket6.Reversed = True

sketch15 = doc.addObject("Sketcher::SketchObject", "Sketch014")
body.addObject(sketch15)
sketch15.AttachmentSupport = (doc.XZ_Plane, [""])
sketch15.MapMode = "FlatFace"
sketch15.AttachmentOffset = App.Placement(Vector(0, 0, -3.5), App.Rotation())
sketch15.addGeometry([
    Part.LineSegment(Vector(9, -57, 0), Vector(9, -33, 0)),
    Part.LineSegment(Vector(9, -33, 0), Vector(83, -33, 0)),
    Part.LineSegment(Vector(83, -33, 0), Vector(83, -57, 0)),
    Part.LineSegment(Vector(83, -57, 0), Vector(9, -57, 0)),
    Part.LineSegment(Vector(81, -35, 0), Vector(11, -35, 0)),
    Part.LineSegment(Vector(11, -35, 0), Vector(11, -55, 0)),
    Part.LineSegment(Vector(11, -55, 0), Vector(81, -55, 0)),
    Part.LineSegment(Vector(81, -55, 0), Vector(81, -35, 0)),
], False)
sketch15.addConstraint([
    Sketcher.Constraint("Coincident", 0, 2, 1, 1),
    Sketcher.Constraint("Coincident", 1, 2, 2, 1),
    Sketcher.Constraint("Coincident", 2, 2, 3, 1),
    Sketcher.Constraint("Coincident", 3, 2, 0, 1),
    Sketcher.Constraint("Coincident", 4, 2, 5, 1),
    Sketcher.Constraint("Coincident", 5, 2, 6, 1),
    Sketcher.Constraint("Coincident", 6, 2, 7, 1),
    Sketcher.Constraint("Coincident", 7, 2, 4, 1),
    Sketcher.Constraint("Vertical", 0),
    Sketcher.Constraint("Horizontal", 1),
    Sketcher.Constraint("Vertical", 2),
    Sketcher.Constraint("Horizontal", 3),
    Sketcher.Constraint("Horizontal", 4),
    Sketcher.Constraint("Vertical", 5),
    Sketcher.Constraint("Horizontal", 6),
    Sketcher.Constraint("Vertical", 7),
    Sketcher.Constraint("DistanceX", 1, 1, 1, 2, Q("74 mm")),
    Sketcher.Constraint("DistanceX", 4, 2, 4, 1, Q("70 mm")),
    Sketcher.Constraint("DistanceY", 0, 1, 0, 2, Q("24.3 mm")),
    Sketcher.Constraint("DistanceY", 5, 2, 5, 1, Q("20.3 mm")),
    Sketcher.Constraint("DistanceX", 0, 2, 4, 2, Q("2 mm")),
    Sketcher.Constraint("DistanceY", 4, 2, 0, 2, Q("2 mm")),
    Sketcher.Constraint("DistanceX", -1, 1, 0, 2, Q("8.932869 mm")),
    Sketcher.Constraint("DistanceY", 0, 2, -1, 1, Q("32.97555 mm")),
])
pad9 = doc.addObject("PartDesign::Pad", "Pad008")
body.addObject(pad9)
pad9.Profile = sketch15
pad9.Length = 20
pad9.Reversed = True

sketch16 = doc.addObject("Sketcher::SketchObject", "Sketch015")
body.addObject(sketch16)
sketch16.AttachmentSupport = (doc.XZ_Plane, [""])
sketch16.MapMode = "FlatFace"
sketch16.AttachmentOffset = App.Placement(Vector(0, 0, -23.5), App.Rotation())
sketch16.addGeometry([
    Part.LineSegment(Vector(9, -50, 0), Vector(9, -41, 0)),
    Part.LineSegment(Vector(9, -41, 0), Vector(83, -41, 0)),
    Part.LineSegment(Vector(83, -41, 0), Vector(83, -50, 0)),
    Part.LineSegment(Vector(83, -50, 0), Vector(9, -50, 0)),
], False)
sketch16.addConstraint([
    Sketcher.Constraint("Coincident", 0, 2, 1, 1),
    Sketcher.Constraint("Coincident", 1, 2, 2, 1),
    Sketcher.Constraint("Coincident", 2, 2, 3, 1),
    Sketcher.Constraint("Coincident", 3, 2, 0, 1),
    Sketcher.Constraint("Vertical", 0),
    Sketcher.Constraint("Horizontal", 1),
    Sketcher.Constraint("Vertical", 2),
    Sketcher.Constraint("Horizontal", 3),
    Sketcher.Constraint("DistanceX", 1, 1, 1, 2, Q("74 mm")),
    Sketcher.Constraint("DistanceY", 0, 1, 0, 2, Q("9.741779 mm")),
    Sketcher.Constraint("DistanceX", -1, 1, 0, 2, Q("8.932869 mm")),
    Sketcher.Constraint("DistanceY", 0, 2, -1, 1, Q("40.689052 mm")),
])
pocket7 = doc.addObject("PartDesign::Pocket", "Pocket006")
body.addObject(pocket7)
pocket7.Profile = sketch16
pocket7.Length = 20
pocket7.Reversed = True

sketch17 = doc.addObject("Sketcher::SketchObject", "Sketch016")
body.addObject(sketch17)
sketch17.AttachmentSupport = (doc.XZ_Plane, [""])
sketch17.MapMode = "FlatFace"
sketch17.AttachmentOffset = App.Placement(Vector(0, 0, -23.5), App.Rotation())
sketch17.addGeometry([
    Part.LineSegment(Vector(35, -57, 0), Vector(35, -33, 0)),
    Part.LineSegment(Vector(35, -33, 0), Vector(64, -33, 0)),
    Part.LineSegment(Vector(64, -33, 0), Vector(64, -57, 0)),
    Part.LineSegment(Vector(64, -57, 0), Vector(35, -57, 0)),
], False)
sketch17.addConstraint([
    Sketcher.Constraint("Coincident", 0, 2, 1, 1),
    Sketcher.Constraint("Coincident", 1, 2, 2, 1),
    Sketcher.Constraint("Coincident", 2, 2, 3, 1),
    Sketcher.Constraint("Coincident", 3, 2, 0, 1),
    Sketcher.Constraint("Vertical", 0),
    Sketcher.Constraint("Horizontal", 1),
    Sketcher.Constraint("Vertical", 2),
    Sketcher.Constraint("Horizontal", 3),
    Sketcher.Constraint("DistanceY", 0, 1, 0, 2, Q("24.3 mm")),
    Sketcher.Constraint("DistanceX", 1, 1, 1, 2, Q("29.010965 mm")),
    Sketcher.Constraint("DistanceY", 0, 2, -1, 1, Q("32.97555 mm")),
    Sketcher.Constraint("DistanceX", -1, 1, 1, 2, Q("63.609961 mm")),
])
pocket8 = doc.addObject("PartDesign::Pocket", "Pocket007")
body.addObject(pocket8)
pocket8.Profile = sketch17
pocket8.Length = 20
pocket8.Reversed = True

sketch18 = doc.addObject("Sketcher::SketchObject", "Sketch017")
body.addObject(sketch18)
sketch18.AttachmentSupport = (doc.XZ_Plane, [""])
sketch18.MapMode = "FlatFace"
sketch18.AttachmentOffset = App.Placement(Vector(0, 0, -3.5), App.Rotation())
sketch18.addGeometry([
    Part.LineSegment(Vector(-81, 42, 0), Vector(-81, 77, 0)),
    Part.LineSegment(Vector(-81, 77, 0), Vector(-55, 77, 0)),
    Part.LineSegment(Vector(-55, 77, 0), Vector(-55, 42, 0)),
    Part.LineSegment(Vector(-55, 42, 0), Vector(-81, 42, 0)),
    Part.LineSegment(Vector(55, 42, 0), Vector(55, 77, 0)),
    Part.LineSegment(Vector(55, 77, 0), Vector(81, 77, 0)),
    Part.LineSegment(Vector(81, 77, 0), Vector(81, 42, 0)),
    Part.LineSegment(Vector(81, 42, 0), Vector(55, 42, 0)),
], False)
sketch18.addConstraint([
    Sketcher.Constraint("Coincident", 0, 2, 1, 1),
    Sketcher.Constraint("Coincident", 1, 2, 2, 1),
    Sketcher.Constraint("Coincident", 2, 2, 3, 1),
    Sketcher.Constraint("Coincident", 3, 2, 0, 1),
    Sketcher.Constraint("Coincident", 4, 2, 5, 1),
    Sketcher.Constraint("Coincident", 5, 2, 6, 1),
    Sketcher.Constraint("Coincident", 6, 2, 7, 1),
    Sketcher.Constraint("Coincident", 7, 2, 4, 1),
    Sketcher.Constraint("Vertical", 0),
    Sketcher.Constraint("Horizontal", 1),
    Sketcher.Constraint("Vertical", 2),
    Sketcher.Constraint("Horizontal", 3),
    Sketcher.Constraint("Vertical", 4),
    Sketcher.Constraint("Horizontal", 5),
    Sketcher.Constraint("Vertical", 6),
    Sketcher.Constraint("Horizontal", 7),
    Sketcher.Constraint("Symmetric", 1, 2, 4, 2, -2),
    Sketcher.Constraint("Symmetric", 3, 2, 6, 2, -2),
    Sketcher.Constraint("DistanceX", 1, 1, 1, 2, Q("26.105015 mm")),
    Sketcher.Constraint("DistanceY", 0, 1, 0, 2, Q("35.922285 mm")),
    Sketcher.Constraint("DistanceX", 0, 2, -1, 1, Q("80.992481 mm")),
    Sketcher.Constraint("DistanceY", -1, 1, 0, 2, Q("77.476821 mm")),
])
pocket9 = doc.addObject("PartDesign::Pocket", "Pocket008")
body.addObject(pocket9)
pocket9.Profile = sketch18
pocket9.Length = 20
pocket9.Reversed = True

doc.recompute()
